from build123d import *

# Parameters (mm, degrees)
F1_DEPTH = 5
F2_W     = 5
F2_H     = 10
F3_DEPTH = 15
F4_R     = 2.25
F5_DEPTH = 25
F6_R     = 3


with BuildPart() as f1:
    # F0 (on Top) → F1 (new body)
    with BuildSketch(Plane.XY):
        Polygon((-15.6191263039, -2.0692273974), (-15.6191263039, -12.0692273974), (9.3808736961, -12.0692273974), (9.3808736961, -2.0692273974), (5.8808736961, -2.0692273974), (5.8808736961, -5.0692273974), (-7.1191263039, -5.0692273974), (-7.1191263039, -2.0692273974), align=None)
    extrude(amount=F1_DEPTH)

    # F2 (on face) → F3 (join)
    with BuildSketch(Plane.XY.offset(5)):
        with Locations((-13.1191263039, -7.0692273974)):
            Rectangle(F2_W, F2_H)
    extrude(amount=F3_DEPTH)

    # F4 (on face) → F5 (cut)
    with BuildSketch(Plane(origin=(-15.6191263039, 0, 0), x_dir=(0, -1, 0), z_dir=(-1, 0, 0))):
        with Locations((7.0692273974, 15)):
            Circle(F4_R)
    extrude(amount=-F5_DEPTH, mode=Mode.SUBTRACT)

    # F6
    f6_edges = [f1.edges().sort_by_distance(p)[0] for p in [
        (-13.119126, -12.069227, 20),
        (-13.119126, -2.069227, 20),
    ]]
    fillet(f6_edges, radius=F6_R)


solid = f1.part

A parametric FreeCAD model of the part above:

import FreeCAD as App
import Part
import Sketcher
Q = App.Units.Quantity


def edges_at(feature, points):
    """Names of the edges that pass closest to the given points."""
    edges = feature.Shape.Edges
    near = lambda p: min(range(len(edges)), key=lambda i: edges[i].distToShape(Part.Vertex(*p))[0])
    return sorted({f"Edge{near(p) + 1}" for p in points})


def add_polygon(sketch, points):
    """Adds a closed chain of lines whose ends are joined by coincident constraints."""
    first, n = sketch.GeometryCount, len(points)
    for a, b in zip(points, points[1:] + points[:1]):
        sketch.addGeometry(Part.LineSegment(App.Vector(*a, 0), App.Vector(*b, 0)), False)
    for i in range(n):
        sketch.addConstraint(Sketcher.Constraint("Coincident", first + i, 2, first + (i + 1) % n, 1))

doc = App.newDocument("Part")
body = doc.addObject("PartDesign::Body", "Body")

# Sketch on XY plane
sketch1 = body.newObject("Sketcher::SketchObject", "Sketch")
sketch1.AttachmentSupport = (doc.getObject("XY_Plane"), [""])
sketch1.MapMode = "FlatFace"
add_polygon(sketch1, [(-15.6, -2.1), (-15.6, -12.1), (9.4, -12.1), (9.4, -2.1), (5.9, -2.1), (5.9, -5.1), (-7.1, -5.1), (-7.1, -2.1)])  # lines 0-7
sketch1.addConstraint(Sketcher.Constraint("Vertical", 0))
sketch1.addConstraint(Sketcher.Constraint("Horizontal", 1))
sketch1.addConstraint(Sketcher.Constraint("Vertical", 2))
sketch1.addConstraint(Sketcher.Constraint("Horizontal", 3))
sketch1.addConstraint(Sketcher.Constraint("Vertical", 4))
sketch1.addConstraint(Sketcher.Constraint("Horizontal", 5))
sketch1.addConstraint(Sketcher.Constraint("Vertical", 6))
sketch1.addConstraint(Sketcher.Constraint("Horizontal", 7))
sketch1.addConstraint(Sketcher.Constraint("Horizontal", 3, 2, 6, 2))
sketch1.addConstraint(Sketcher.Constraint("DistanceX", 1, 1, 1, 2, Q("25 mm")))
sketch1.addConstraint(Sketcher.Constraint("DistanceX", 5, 2, 5, 1, Q("13 mm")))
sketch1.addConstraint(Sketcher.Constraint("DistanceY", 0, 2, 0, 1, Q("10 mm")))
sketch1.addConstraint(Sketcher.Constraint("DistanceY", 4, 2, 4, 1, Q("3 mm")))
sketch1.addConstraint(Sketcher.Constraint("DistanceX", 3, 2, 3, 1, Q("3.5 mm")))
sketch1.addConstraint(Sketcher.Constraint("DistanceX", 0, 2, -1, 1, Q("15.619126 mm")))
sketch1.addConstraint(Sketcher.Constraint("DistanceY", 0, 2, -1, 1, Q("12.069227 mm")))
pad1 = body.newObject("PartDesign::Pad", "Pad")
pad1.Profile = sketch1
pad1.Length = 5

# Sketch on XY plane
sketch2 = body.newObject("Sketcher::SketchObject", "Sketch001")
sketch2.AttachmentSupport = (doc.getObject("XY_Plane"), [""])
sketch2.MapMode = "FlatFace"
sketch2.AttachmentOffset = App.Placement(App.Vector(0, 0, 5), App.Rotation())
add_polygon(sketch2, [(-16, -2), (-16, -12), (-11, -12), (-11, -2)])  # lines 0-3
sketch2.addConstraint(Sketcher.Constraint("Vertical", 0))
sketch2.addConstraint(Sketcher.Constraint("Horizontal", 1))
sketch2.addConstraint(Sketcher.Constraint("Vertical", 2))
sketch2.addConstraint(Sketcher.Constraint("Horizontal", 3))
sketch2.addConstraint(Sketcher.Constraint("DistanceX", 1, 1, 1, 2, Q("5 mm")))
sketch2.addConstraint(Sketcher.Constraint("DistanceY", 0, 2, 0, 1, Q("10 mm")))
sketch2.addConstraint(Sketcher.Constraint("DistanceX", 0, 2, -1, 1, Q("15.619126 mm")))
sketch2.addConstraint(Sketcher.Constraint("DistanceY", 0, 2, -1, 1, Q("12.069227 mm")))
pad2 = body.newObject("PartDesign::Pad", "Pad001")
pad2.Profile = sketch2
pad2.Length = 15

# Sketch on YZ plane
sketch3 = body.newObject("Sketcher::SketchObject", "Sketch002")
sketch3.AttachmentSupport = (doc.getObject("YZ_Plane"), [""])
sketch3.MapMode = "FlatFace"
sketch3.AttachmentOffset = App.Placement(App.Vector(0, 0, -15.619126), App.Rotation())
sketch3.addGeometry(Part.Circle(App.Vector(-7.1, 15, 0), App.Vector(0, 0, 1), 2.2), False)
sketch3.addConstraint(Sketcher.Constraint("Diameter", 0, Q("4.5 mm")))
sketch3.addConstraint(Sketcher.Constraint("DistanceY", -1, 1, 0, 3, Q("15 mm")))
sketch3.addConstraint(Sketcher.Constraint("DistanceX", 0, 3, -1, 1, Q("7.069227 mm")))
pocket1 = body.newObject("PartDesign::Pocket", "Pocket")
pocket1.Profile = sketch3
pocket1.Length = 25
pocket1.Reversed = True
doc.recompute()

fillet = body.newObject("PartDesign::Fillet", "Fillet")
fillet.Base = (pocket1, edges_at(pocket1, [(-13.119, -12.069, 20), (-13.119, -2.069, 20)]))
fillet.Radius = 3

doc.recompute()
